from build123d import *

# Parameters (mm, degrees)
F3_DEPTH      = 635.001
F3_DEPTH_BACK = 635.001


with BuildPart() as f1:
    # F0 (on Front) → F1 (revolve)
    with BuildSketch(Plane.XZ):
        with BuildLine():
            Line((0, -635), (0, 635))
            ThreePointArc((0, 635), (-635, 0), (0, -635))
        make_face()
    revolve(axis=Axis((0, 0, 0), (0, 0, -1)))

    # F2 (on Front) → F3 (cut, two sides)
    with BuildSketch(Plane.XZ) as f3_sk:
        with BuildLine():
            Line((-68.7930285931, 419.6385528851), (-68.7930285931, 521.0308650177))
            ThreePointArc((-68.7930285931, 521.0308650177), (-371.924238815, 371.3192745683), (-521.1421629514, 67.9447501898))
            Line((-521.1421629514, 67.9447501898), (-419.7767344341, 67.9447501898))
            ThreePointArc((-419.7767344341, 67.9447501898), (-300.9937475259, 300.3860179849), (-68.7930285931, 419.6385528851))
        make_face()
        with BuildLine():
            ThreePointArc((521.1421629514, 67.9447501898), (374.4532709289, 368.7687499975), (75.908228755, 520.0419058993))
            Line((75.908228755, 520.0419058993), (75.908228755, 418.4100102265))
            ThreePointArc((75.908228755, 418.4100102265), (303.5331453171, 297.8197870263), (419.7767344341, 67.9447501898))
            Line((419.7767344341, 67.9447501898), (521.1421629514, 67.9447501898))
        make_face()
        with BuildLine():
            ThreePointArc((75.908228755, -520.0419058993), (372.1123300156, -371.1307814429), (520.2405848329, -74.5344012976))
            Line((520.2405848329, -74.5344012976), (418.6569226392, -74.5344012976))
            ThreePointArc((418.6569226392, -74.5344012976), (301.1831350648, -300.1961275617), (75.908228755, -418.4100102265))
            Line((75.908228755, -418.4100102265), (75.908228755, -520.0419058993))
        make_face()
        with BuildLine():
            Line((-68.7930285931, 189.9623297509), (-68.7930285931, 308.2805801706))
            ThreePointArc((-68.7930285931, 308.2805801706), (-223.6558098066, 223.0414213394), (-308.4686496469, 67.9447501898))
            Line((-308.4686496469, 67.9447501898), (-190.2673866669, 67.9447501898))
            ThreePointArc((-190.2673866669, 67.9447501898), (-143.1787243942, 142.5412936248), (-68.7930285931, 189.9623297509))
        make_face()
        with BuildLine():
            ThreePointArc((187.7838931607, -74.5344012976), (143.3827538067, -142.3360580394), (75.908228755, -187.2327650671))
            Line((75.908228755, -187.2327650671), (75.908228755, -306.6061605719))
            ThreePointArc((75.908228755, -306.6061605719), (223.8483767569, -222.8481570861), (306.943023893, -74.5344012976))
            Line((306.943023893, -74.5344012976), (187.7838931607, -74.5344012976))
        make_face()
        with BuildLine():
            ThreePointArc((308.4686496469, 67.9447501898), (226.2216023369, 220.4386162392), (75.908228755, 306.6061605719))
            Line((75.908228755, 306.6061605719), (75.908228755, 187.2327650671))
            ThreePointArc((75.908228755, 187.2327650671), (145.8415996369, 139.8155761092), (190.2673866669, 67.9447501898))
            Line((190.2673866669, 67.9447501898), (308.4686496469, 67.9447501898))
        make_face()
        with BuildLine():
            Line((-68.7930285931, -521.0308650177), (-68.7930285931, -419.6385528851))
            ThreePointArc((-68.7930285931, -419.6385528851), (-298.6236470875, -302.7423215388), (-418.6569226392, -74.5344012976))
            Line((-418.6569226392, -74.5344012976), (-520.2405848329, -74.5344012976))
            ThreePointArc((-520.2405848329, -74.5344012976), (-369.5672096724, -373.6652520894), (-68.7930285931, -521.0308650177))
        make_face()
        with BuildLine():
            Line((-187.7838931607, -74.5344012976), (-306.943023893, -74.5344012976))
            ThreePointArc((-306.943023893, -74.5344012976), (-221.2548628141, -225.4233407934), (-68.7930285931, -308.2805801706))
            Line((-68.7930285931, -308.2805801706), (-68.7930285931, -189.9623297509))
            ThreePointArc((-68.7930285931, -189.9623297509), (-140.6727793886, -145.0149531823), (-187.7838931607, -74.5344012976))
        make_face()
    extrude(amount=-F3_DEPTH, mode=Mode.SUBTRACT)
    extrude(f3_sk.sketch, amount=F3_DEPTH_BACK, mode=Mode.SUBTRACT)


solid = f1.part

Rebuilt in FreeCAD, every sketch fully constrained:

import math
import FreeCAD as App
import Part
import Sketcher
Q = App.Units.Quantity

doc = App.newDocument("Part")
params = doc.addObject("Spreadsheet::Sheet", "Params")
for row, (alias, value) in enumerate([
    ("sketch1_radius", "25 in"),
    ("revolution_angle", "360 deg"),
], start=1):
    params.set(f"A{row}", alias)
    params.set(f"B{row}", "=" + value)
    params.setAlias(f"B{row}", alias)

body = doc.addObject("PartDesign::Body", "Body")

# Sketch on XZ plane
sketch1 = doc.addObject("Sketcher::SketchObject", "Sketch")
body.addObject(sketch1)
sketch1.AttachmentSupport = (doc.XZ_Plane, [""])
sketch1.MapMode = "FlatFace"
sketch1.addGeometry(Part.LineSegment(App.Vector(0, -635, 0), App.Vector(0, 635, 0)), False)
sketch1.addGeometry(Part.ArcOfCircle(Part.Circle(App.Vector(0, 0, 0), App.Vector(0, 0, 1), 635), math.radians(90), math.radians(270)), False)
sketch1.addConstraint(Sketcher.Constraint("Coincident", 0, 1, 1, 2))
sketch1.addConstraint(Sketcher.Constraint("Coincident", 1, 1, 0, 2))
sketch1.addConstraint(Sketcher.Constraint("Vertical", 0))
sketch1.addConstraint(Sketcher.Constraint("Coincident", 1, 3, -1, 1))
sketch1.addConstraint(Sketcher.Constraint("PointOnObject", 0, 1, -2))
sketch1.addConstraint(Sketcher.Constraint("Radius", 1, Q("25 in")))
sketch1.setExpression("Constraints[5]", "Params.sketch1_radius")
revolution = doc.addObject("PartDesign::Revolution", "Revolution")
body.addObject(revolution)
revolution.Profile = sketch1
revolution.ReferenceAxis = (sketch1, ["V_Axis"])
revolution.setExpression("Angle", "Params.revolution_angle")

# Sketch on XZ plane
sketch2 = doc.addObject("Sketcher::SketchObject", "Sketch001")
body.addObject(sketch2)
sketch2.AttachmentSupport = (doc.XZ_Plane, [""])
sketch2.MapMode = "FlatFace"
sketch2.addGeometry(Part.LineSegment(App.Vector(-69, 420, 0), App.Vector(-69, 521, 0)), False)
sketch2.addGeometry(Part.ArcOfCircle(Part.Circle(App.Vector(0, 0, 0), App.Vector(0, 0, 1), 526), math.radians(98), math.radians(173)), False)
sketch2.addGeometry(Part.LineSegment(App.Vector(-521, 68, 0), App.Vector(-420, 68, 0)), False)
sketch2.addGeometry(Part.ArcOfCircle(Part.Circle(App.Vector(0, 0, 0), App.Vector(0, 0, 1), 425), math.radians(99), math.radians(171)), False)
sketch2.addGeometry(Part.ArcOfCircle(Part.Circle(App.Vector(0, 0, 0), App.Vector(0, 0, 1), 526), math.radians(7), math.radians(82)), False)
sketch2.addGeometry(Part.LineSegment(App.Vector(76, 520, 0), App.Vector(76, 418, 0)), False)
sketch2.addGeometry(Part.ArcOfCircle(Part.Circle(App.Vector(0, 0, 0), App.Vector(0, 0, 1), 425), math.radians(9), math.radians(80)), False)
sketch2.addGeometry(Part.LineSegment(App.Vector(420, 68, 0), App.Vector(521, 68, 0)), False)
sketch2.addGeometry(Part.ArcOfCircle(Part.Circle(App.Vector(0, 0, 0), App.Vector(0, 0, 1), 526), math.radians(-82), math.radians(-8)), False)
sketch2.addGeometry(Part.LineSegment(App.Vector(520, -75, 0), App.Vector(419, -75, 0)), False)
sketch2.addGeometry(Part.ArcOfCircle(Part.Circle(App.Vector(0, 0, 0), App.Vector(0, 0, 1), 425), math.radians(-80), math.radians(-10)), False)
sketch2.addGeometry(Part.LineSegment(App.Vector(76, -418, 0), App.Vector(76, -520, 0)), False)
sketch2.addGeometry(Part.LineSegment(App.Vector(-69, 190, 0), App.Vector(-69, 308, 0)), False)
sketch2.addGeometry(Part.ArcOfCircle(Part.Circle(App.Vector(0, 0, 0), App.Vector(0, 0, 1), 316), math.radians(103), math.radians(168)), False)
sketch2.addGeometry(Part.LineSegment(App.Vector(-308, 68, 0), App.Vector(-190, 68, 0)), False)
sketch2.addGeometry(Part.ArcOfCircle(Part.Circle(App.Vector(0, 0, 0), App.Vector(0, 0, 1), 202), math.radians(110), math.radians(160)), False)
sketch2.addGeometry(Part.ArcOfCircle(Part.Circle(App.Vector(0, 0, 0), App.Vector(0, 0, 1), 202), math.radians(-68), math.radians(-22)), False)
sketch2.addGeometry(Part.LineSegment(App.Vector(76, -187, 0), App.Vector(76, -307, 0)), False)
sketch2.addGeometry(Part.ArcOfCircle(Part.Circle(App.Vector(0, 0, 0), App.Vector(0, 0, 1), 316), math.radians(-76), math.radians(-14)), False)
sketch2.addGeometry(Part.LineSegment(App.Vector(307, -75, 0), App.Vector(188, -75, 0)), False)
sketch2.addGeometry(Part.ArcOfCircle(Part.Circle(App.Vector(0, 0, 0), App.Vector(0, 0, 1), 316), math.radians(12), math.radians(76)), False)
sketch2.addGeometry(Part.LineSegment(App.Vector(76, 307, 0), App.Vector(76, 187, 0)), False)
sketch2.addGeometry(Part.ArcOfCircle(Part.Circle(App.Vector(0, 0, 0), App.Vector(0, 0, 1), 202), math.radians(20), math.radians(68)), False)
sketch2.addGeometry(Part.LineSegment(App.Vector(190, 68, 0), App.Vector(308, 68, 0)), False)
sketch2.addGeometry(Part.LineSegment(App.Vector(-69, -521, 0), App.Vector(-69, -420, 0)), False)
sketch2.addGeometry(Part.ArcOfCircle(Part.Circle(App.Vector(0, 0, 0), App.Vector(0, 0, 1), 425), math.radians(-170), math.radians(-99)), False)
sketch2.addGeometry(Part.LineSegment(App.Vector(-419, -75, 0), App.Vector(-520, -75, 0)), False)
sketch2.addGeometry(Part.ArcOfCircle(Part.Circle(App.Vector(0, 0, 0), App.Vector(0, 0, 1), 526), math.radians(-172), math.radians(-98)), False)
sketch2.addGeometry(Part.LineSegment(App.Vector(-188, -75, 0), App.Vector(-307, -75, 0)), False)
sketch2.addGeometry(Part.ArcOfCircle(Part.Circle(App.Vector(0, 0, 0), App.Vector(0, 0, 1), 316), math.radians(-166), math.radians(-103)), False)
sketch2.addGeometry(Part.LineSegment(App.Vector(-69, -308, 0), App.Vector(-69, -190, 0)), False)
sketch2.addGeometry(Part.ArcOfCircle(Part.Circle(App.Vector(0, 0, 0), App.Vector(0, 0, 1), 202), math.radians(-158), math.radians(-110)), False)
sketch2.addConstraint(Sketcher.Constraint("Coincident", 0, 2, 1, 1))
sketch2.addConstraint(Sketcher.Constraint("Coincident", 1, 2, 2, 1))
sketch2.addConstraint(Sketcher.Constraint("Coincident", 2, 2, 3, 2))
sketch2.addConstraint(Sketcher.Constraint("Coincident", 3, 1, 0, 1))
sketch2.addConstraint(Sketcher.Constraint("Coincident", 4, 2, 5, 1))
sketch2.addConstraint(Sketcher.Constraint("Coincident", 5, 2, 6, 2))
sketch2.addConstraint(Sketcher.Constraint("Coincident", 6, 1, 7, 1))
sketch2.addConstraint(Sketcher.Constraint("Coincident", 7, 2, 4, 1))
sketch2.addConstraint(Sketcher.Constraint("Coincident", 8, 2, 9, 1))
sketch2.addConstraint(Sketcher.Constraint("Coincident", 9, 2, 10, 2))
sketch2.addConstraint(Sketcher.Constraint("Coincident", 10, 1, 11, 1))
sketch2.addConstraint(Sketcher.Constraint("Coincident", 11, 2, 8, 1))
sketch2.addConstraint(Sketcher.Constraint("Coincident", 12, 2, 13, 1))
sketch2.addConstraint(Sketcher.Constraint("Coincident", 13, 2, 14, 1))
sketch2.addConstraint(Sketcher.Constraint("Coincident", 14, 2, 15, 2))
sketch2.addConstraint(Sketcher.Constraint("Coincident", 15, 1, 12, 1))
sketch2.addConstraint(Sketcher.Constraint("Coincident", 16, 1, 17, 1))
sketch2.addConstraint(Sketcher.Constraint("Coincident", 17, 2, 18, 1))
sketch2.addConstraint(Sketcher.Constraint("Coincident", 18, 2, 19, 1))
sketch2.addConstraint(Sketcher.Constraint("Coincident", 19, 2, 16, 2))
sketch2.addConstraint(Sketcher.Constraint("Coincident", 20, 2, 21, 1))
sketch2.addConstraint(Sketcher.Constraint("Coincident", 21, 2, 22, 2))
sketch2.addConstraint(Sketcher.Constraint("Coincident", 22, 1, 23, 1))
sketch2.addConstraint(Sketcher.Constraint("Coincident", 23, 2, 20, 1))
sketch2.addConstraint(Sketcher.Constraint("Coincident", 24, 2, 25, 2))
sketch2.addConstraint(Sketcher.Constraint("Coincident", 25, 1, 26, 1))
sketch2.addConstraint(Sketcher.Constraint("Coincident", 26, 2, 27, 1))
sketch2.addConstraint(Sketcher.Constraint("Coincident", 27, 2, 24, 1))
sketch2.addConstraint(Sketcher.Constraint("Coincident", 28, 2, 29, 1))
sketch2.addConstraint(Sketcher.Constraint("Coincident", 29, 2, 30, 1))
sketch2.addConstraint(Sketcher.Constraint("Coincident", 30, 2, 31, 2))
sketch2.addConstraint(Sketcher.Constraint("Coincident", 31, 1, 28, 1))
sketch2.addConstraint(Sketcher.Constraint("Vertical", 0))
sketch2.addConstraint(Sketcher.Constraint("Horizontal", 2))
sketch2.addConstraint(Sketcher.Constraint("Vertical", 5))
sketch2.addConstraint(Sketcher.Constraint("Horizontal", 7))
sketch2.addConstraint(Sketcher.Constraint("Horizontal", 9))
sketch2.addConstraint(Sketcher.Constraint("Vertical", 11))
sketch2.addConstraint(Sketcher.Constraint("Vertical", 12))
sketch2.addConstraint(Sketcher.Constraint("Horizontal", 14))
sketch2.addConstraint(Sketcher.Constraint("Vertical", 17))
sketch2.addConstraint(Sketcher.Constraint("Horizontal", 19))
sketch2.addConstraint(Sketcher.Constraint("Vertical", 21))
sketch2.addConstraint(Sketcher.Constraint("Horizontal", 23))
sketch2.addConstraint(Sketcher.Constraint("Vertical", 24))
sketch2.addConstraint(Sketcher.Constraint("Horizontal", 26))
sketch2.addConstraint(Sketcher.Constraint("Horizontal", 28))
sketch2.addConstraint(Sketcher.Constraint("Vertical", 30))
sketch2.addConstraint(Sketcher.Constraint("Coincident", 1, 3, -1, 1))
sketch2.addConstraint(Sketcher.Constraint("Coincident", 3, 3, -1, 1))
sketch2.addConstraint(Sketcher.Constraint("Coincident", 4, 3, -1, 1))
sketch2.addConstraint(Sketcher.Constraint("Coincident", 6, 3, -1, 1))
sketch2.addConstraint(Sketcher.Constraint("Coincident", 8, 3, -1, 1))
sketch2.addConstraint(Sketcher.Constraint("Coincident", 10, 3, -1, 1))
sketch2.addConstraint(Sketcher.Constraint("Coincident", 13, 3, -1, 1))
sketch2.addConstraint(Sketcher.Constraint("Coincident", 15, 3, -1, 1))
sketch2.addConstraint(Sketcher.Constraint("Coincident", 16, 3, -1, 1))
sketch2.addConstraint(Sketcher.Constraint("Coincident", 18, 3, -1, 1))
sketch2.addConstraint(Sketcher.Constraint("Coincident", 20, 3, -1, 1))
sketch2.addConstraint(Sketcher.Constraint("Coincident", 22, 3, -1, 1))
sketch2.addConstraint(Sketcher.Constraint("Coincident", 25, 3, -1, 1))
sketch2.addConstraint(Sketcher.Constraint("Coincident", 27, 3, -1, 1))
sketch2.addConstraint(Sketcher.Constraint("Coincident", 29, 3, -1, 1))
sketch2.addConstraint(Sketcher.Constraint("Coincident", 31, 3, -1, 1))
sketch2.addConstraint(Sketcher.Constraint("Equal", 1, 4))
sketch2.addConstraint(Sketcher.Constraint("Equal", 3, 6))
sketch2.addConstraint(Sketcher.Constraint("Equal", 4, 8))
sketch2.addConstraint(Sketcher.Constraint("Equal", 6, 10))
sketch2.addConstraint(Sketcher.Constraint("Equal", 15, 16))
sketch2.addConstraint(Sketcher.Constraint("Equal", 13, 18))
sketch2.addConstraint(Sketcher.Constraint("Equal", 18, 20))
sketch2.addConstraint(Sketcher.Constraint("Equal", 16, 22))
sketch2.addConstraint(Sketcher.Constraint("Equal", 10, 25))
sketch2.addConstraint(Sketcher.Constraint("Equal", 8, 27))
sketch2.addConstraint(Sketcher.Constraint("Equal", 20, 29))
sketch2.addConstraint(Sketcher.Constraint("Equal", 22, 31))
sketch2.addConstraint(Sketcher.Constraint("Horizontal", 2, 2, 6, 1))
sketch2.addConstraint(Sketcher.Constraint("Horizontal", 7, 2, 13, 2))
sketch2.addConstraint(Sketcher.Constraint("Horizontal", 9, 2, 18, 2))
sketch2.addConstraint(Sketcher.Constraint("Horizontal", 14, 2, 22, 1))
sketch2.addConstraint(Sketcher.Constraint("Horizontal", 19, 2, 25, 1))
sketch2.addConstraint(Sketcher.Constraint("Horizontal", 26, 2, 28, 2))
sketch2.addConstraint(Sketcher.Constraint("Vertical", 5, 2, 10, 1))
sketch2.addConstraint(Sketcher.Constraint("Vertical", 3, 1, 12, 2))
sketch2.addConstraint(Sketcher.Constraint("Vertical", 11, 2, 16, 1))
sketch2.addConstraint(Sketcher.Constraint("Vertical", 17, 2, 20, 2))
sketch2.addConstraint(Sketcher.Constraint("Vertical", 15, 1, 24, 2))
sketch2.addConstraint(Sketcher.Constraint("Equal", 12, 30))
sketch2.addConstraint(Sketcher.Constraint("Radius", 13, Q("315.86294 mm")))
sketch2.addConstraint(Sketcher.Constraint("Radius", 1, Q("525.552702 mm")))
sketch2.addConstraint(Sketcher.Constraint("Radius", 3, Q("425.239927 mm")))
sketch2.addConstraint(Sketcher.Constraint("Radius", 15, Q("202.035065 mm")))
sketch2.addConstraint(Sketcher.Constraint("DistanceX", 0, 2, 5, 2, Q("5.6968999 in")))
sketch2.addConstraint(Sketcher.Constraint("DistanceX", 2, 1, 2, 2, Q("101.365429 mm")))
sketch2.addConstraint(Sketcher.Constraint("DistanceX", 19, 2, 19, 1, Q("119.159131 mm")))
sketch2.addConstraint(Sketcher.Constraint("DistanceY", 12, 1, 12, 2, Q("118.31825 mm")))
pocket1 = doc.addObject("PartDesign::Pocket", "Pocket")
body.addObject(pocket1)
pocket1.Profile = sketch2
pocket1.Type = "ThroughAll"
pocket1.Midplane = True

doc.recompute()
